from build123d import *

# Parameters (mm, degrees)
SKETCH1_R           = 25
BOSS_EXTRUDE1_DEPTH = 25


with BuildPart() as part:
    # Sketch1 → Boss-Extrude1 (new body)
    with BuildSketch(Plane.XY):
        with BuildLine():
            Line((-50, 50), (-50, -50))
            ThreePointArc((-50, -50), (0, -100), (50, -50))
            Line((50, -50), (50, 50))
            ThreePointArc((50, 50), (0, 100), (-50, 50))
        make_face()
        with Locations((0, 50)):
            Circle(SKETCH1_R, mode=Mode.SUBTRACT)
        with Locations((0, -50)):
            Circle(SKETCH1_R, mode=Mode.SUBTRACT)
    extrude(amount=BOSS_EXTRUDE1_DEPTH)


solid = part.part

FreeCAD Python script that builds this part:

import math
import FreeCAD as App
import Part
import Sketcher
from FreeCAD import Vector
Q = App.Units.Quantity

doc = App.newDocument("Part")
body = doc.addObject("PartDesign::Body", "Body")

sketch1 = body.newObject("Sketcher::SketchObject", "Sketch")
sketch1.AttachmentSupport = (doc.getObject("XY_Plane"), [""])
sketch1.MapMode = "FlatFace"
sketch1.addGeometry(Part.LineSegment(Vector(-50, 50, 0), Vector(-50, -50, 0)), False)
sketch1.addGeometry(Part.ArcOfCircle(Part.Circle(Vector(0, -50, 0), Vector(0, 0, 1), 50), math.radians(180), math.radians(360)), False)
sketch1.addGeometry(Part.LineSegment(Vector(50, -50, 0), Vector(50, 50, 0)), False)
sketch1.addGeometry(Part.ArcOfCircle(Part.Circle(Vector(0, 50, 0), Vector(0, 0, 1), 50), math.radians(0), math.radians(180)), False)
sketch1.addGeometry(Part.Circle(Vector(0, -50, 0), Vector(0, 0, 1), 25), False)
sketch1.addGeometry(Part.Circle(Vector(0, 50, 0), Vector(0, 0, 1), 25), False)
sketch1.addConstraint(Sketcher.Constraint("Tangent", 0, 2, 1, 1))
sketch1.addConstraint(Sketcher.Constraint("Tangent", 1, 2, 2, 1))
sketch1.addConstraint(Sketcher.Constraint("Tangent", 2, 2, 3, 1))
sketch1.addConstraint(Sketcher.Constraint("Tangent", 3, 2, 0, 1))
sketch1.addConstraint(Sketcher.Constraint("Vertical", 0))
sketch1.addConstraint(Sketcher.Constraint("Vertical", 2))
sketch1.addConstraint(Sketcher.Constraint("Coincident", 4, 3, 1, 3))
sketch1.addConstraint(Sketcher.Constraint("Coincident", 5, 3, 3, 3))
sketch1.addConstraint(Sketcher.Constraint("Equal", 4, 5))
sketch1.addConstraint(Sketcher.Constraint("Symmetric", 1, 3, 3, 3, -1, 1))
sketch1.addConstraint(Sketcher.Constraint("Diameter", 4, Q("50 mm")))
sketch1.addConstraint(Sketcher.Constraint("Radius", 1, Q("50 mm")))
sketch1.addConstraint(Sketcher.Constraint("DistanceY", 0, 2, 0, 1, Q("100 mm")))
pad1 = body.newObject("PartDesign::Pad", "Pad")
pad1.Profile = sketch1
pad1.Length = 25

doc.recompute()
